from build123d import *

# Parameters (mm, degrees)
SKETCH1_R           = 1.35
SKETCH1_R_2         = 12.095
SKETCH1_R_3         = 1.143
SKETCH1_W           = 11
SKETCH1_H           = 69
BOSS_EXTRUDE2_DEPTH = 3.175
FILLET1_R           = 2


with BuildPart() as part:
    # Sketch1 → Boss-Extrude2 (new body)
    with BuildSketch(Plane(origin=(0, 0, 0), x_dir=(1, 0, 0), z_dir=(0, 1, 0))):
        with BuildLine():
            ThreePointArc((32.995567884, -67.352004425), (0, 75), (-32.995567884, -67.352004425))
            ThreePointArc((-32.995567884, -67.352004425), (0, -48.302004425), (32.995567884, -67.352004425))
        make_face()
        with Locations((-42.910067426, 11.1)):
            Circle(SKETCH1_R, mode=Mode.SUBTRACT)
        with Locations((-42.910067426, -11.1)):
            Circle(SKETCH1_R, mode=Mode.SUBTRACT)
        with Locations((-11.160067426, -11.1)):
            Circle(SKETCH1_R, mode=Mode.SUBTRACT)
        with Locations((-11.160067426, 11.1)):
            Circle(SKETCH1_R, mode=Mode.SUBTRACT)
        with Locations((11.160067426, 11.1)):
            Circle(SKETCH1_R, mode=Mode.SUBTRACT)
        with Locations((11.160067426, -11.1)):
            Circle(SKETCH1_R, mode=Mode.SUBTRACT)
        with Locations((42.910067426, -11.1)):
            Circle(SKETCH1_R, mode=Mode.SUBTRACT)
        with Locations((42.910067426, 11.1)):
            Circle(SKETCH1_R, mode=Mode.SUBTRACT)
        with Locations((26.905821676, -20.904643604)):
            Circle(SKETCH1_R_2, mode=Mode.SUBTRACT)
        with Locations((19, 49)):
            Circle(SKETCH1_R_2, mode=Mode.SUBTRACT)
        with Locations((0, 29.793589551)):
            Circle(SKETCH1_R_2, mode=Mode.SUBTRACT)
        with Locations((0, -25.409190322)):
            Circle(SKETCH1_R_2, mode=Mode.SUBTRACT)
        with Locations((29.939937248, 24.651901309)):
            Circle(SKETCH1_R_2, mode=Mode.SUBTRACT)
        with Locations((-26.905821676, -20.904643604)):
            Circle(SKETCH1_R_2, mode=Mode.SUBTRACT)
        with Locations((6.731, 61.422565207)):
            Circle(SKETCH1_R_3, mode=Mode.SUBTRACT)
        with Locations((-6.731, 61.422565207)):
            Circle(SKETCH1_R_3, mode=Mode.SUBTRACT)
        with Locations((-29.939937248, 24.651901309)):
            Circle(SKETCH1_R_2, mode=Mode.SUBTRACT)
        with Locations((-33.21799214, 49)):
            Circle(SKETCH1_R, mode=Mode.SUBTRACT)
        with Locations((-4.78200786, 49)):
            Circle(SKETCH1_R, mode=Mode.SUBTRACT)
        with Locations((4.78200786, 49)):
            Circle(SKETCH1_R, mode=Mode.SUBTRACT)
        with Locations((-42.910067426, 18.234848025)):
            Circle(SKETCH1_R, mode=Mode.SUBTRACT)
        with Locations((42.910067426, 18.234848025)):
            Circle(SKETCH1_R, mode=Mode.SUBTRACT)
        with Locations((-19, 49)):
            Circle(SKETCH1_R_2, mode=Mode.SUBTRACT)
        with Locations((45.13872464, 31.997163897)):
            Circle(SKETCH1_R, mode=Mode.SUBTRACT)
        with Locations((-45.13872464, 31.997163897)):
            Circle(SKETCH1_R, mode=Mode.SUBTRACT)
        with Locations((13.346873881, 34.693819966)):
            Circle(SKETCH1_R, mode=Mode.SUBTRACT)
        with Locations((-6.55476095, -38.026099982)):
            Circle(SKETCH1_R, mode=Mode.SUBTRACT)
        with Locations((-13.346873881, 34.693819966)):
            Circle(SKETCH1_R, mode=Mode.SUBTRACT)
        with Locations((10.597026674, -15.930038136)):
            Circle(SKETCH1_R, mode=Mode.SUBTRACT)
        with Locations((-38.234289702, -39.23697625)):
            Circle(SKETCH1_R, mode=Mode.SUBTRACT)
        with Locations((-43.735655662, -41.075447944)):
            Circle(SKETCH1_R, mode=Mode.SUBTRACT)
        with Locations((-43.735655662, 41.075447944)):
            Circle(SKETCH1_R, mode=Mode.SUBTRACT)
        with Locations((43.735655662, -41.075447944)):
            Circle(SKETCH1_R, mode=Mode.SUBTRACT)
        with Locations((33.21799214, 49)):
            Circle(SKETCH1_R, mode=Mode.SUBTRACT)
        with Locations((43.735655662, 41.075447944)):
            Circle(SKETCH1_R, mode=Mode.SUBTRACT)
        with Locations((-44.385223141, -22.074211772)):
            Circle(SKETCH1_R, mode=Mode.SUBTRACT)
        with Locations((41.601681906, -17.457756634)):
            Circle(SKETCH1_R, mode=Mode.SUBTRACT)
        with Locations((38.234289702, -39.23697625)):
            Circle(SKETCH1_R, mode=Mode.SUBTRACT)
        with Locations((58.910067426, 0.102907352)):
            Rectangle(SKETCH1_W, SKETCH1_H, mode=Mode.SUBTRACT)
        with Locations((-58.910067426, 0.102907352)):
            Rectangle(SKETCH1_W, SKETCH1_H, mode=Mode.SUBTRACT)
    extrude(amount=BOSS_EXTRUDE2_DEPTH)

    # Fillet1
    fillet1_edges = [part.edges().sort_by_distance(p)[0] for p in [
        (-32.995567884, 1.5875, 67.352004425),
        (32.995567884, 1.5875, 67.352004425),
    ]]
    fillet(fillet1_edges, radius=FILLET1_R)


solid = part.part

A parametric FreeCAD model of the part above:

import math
import FreeCAD as App
import Part
import Sketcher

V = App.Vector
Q = App.Units.Quantity


def edges_at(feature, points):
    """Names of the edges that pass closest to the given points."""
    edges = feature.Shape.Edges
    near = lambda p: min(range(len(edges)), key=lambda i: edges[i].distToShape(Part.Vertex(*p))[0])
    return sorted({f"Edge{near(p) + 1}" for p in points})

doc = App.newDocument("Part")
body = doc.addObject("PartDesign::Body", "Body")

# Sketch on XZ plane
sketch1 = body.newObject("Sketcher::SketchObject", "Sketch")
sketch1.AttachmentSupport = (doc.getObject("XZ_Plane"), [""])
sketch1.MapMode = "FlatFace"
sketch1.addGeometry(Part.ArcOfCircle(Part.Circle(V(0, 0, 0), V(0, 0, 1), 75), math.radians(116.100111), math.radians(423.899889)), False)
sketch1.addGeometry(Part.ArcOfCircle(Part.Circle(V(0, 86.402004, 0), V(0, 0, 1), 38.1), math.radians(-150), math.radians(-30)), False)
sketch1.addGeometry(Part.Circle(V(-43.735656, 41.075448, 0), V(0, 0, 1), 1.35), False)
sketch1.addGeometry(Part.Circle(V(-38.23429, 39.236976, 0), V(0, 0, 1), 1.35), False)
sketch1.addGeometry(Part.Circle(V(-44.385223, 22.074212, 0), V(0, 0, 1), 1.35), False)
sketch1.addGeometry(Part.Circle(V(-6.554761, 38.0261, 0), V(0, 0, 1), 1.35), False)
sketch1.addGeometry(Part.Circle(V(-26.905822, 20.904644, 0), V(0, 0, 1), 12.095), False)
sketch1.addGeometry(Part.Circle(V(-42.910067, 11.1, 0), V(0, 0, 1), 1.35), False)
sketch1.addGeometry(Part.LineSegment(V(-53.410067, 34.397093, 0), V(-64.410067, 34.397093, 0)), False)
sketch1.addGeometry(Part.LineSegment(V(-64.410067, 34.397093, 0), V(-64.410067, -34.602907, 0)), False)
sketch1.addGeometry(Part.LineSegment(V(-64.410067, -34.602907, 0), V(-53.410067, -34.602907, 0)), False)
sketch1.addGeometry(Part.LineSegment(V(-53.410067, -34.602907, 0), V(-53.410067, 34.397093, 0)), False)
sketch1.addGeometry(Part.Circle(V(-11.160067, 11.1, 0), V(0, 0, 1), 1.35), False)
sketch1.addGeometry(Part.Circle(V(0, 25.40919, 0), V(0, 0, 1), 12.095), False)
sketch1.addGeometry(Part.Circle(V(26.905822, 20.904644, 0), V(0, 0, 1), 12.095), False)
sketch1.addGeometry(Part.Circle(V(38.23429, 39.236976, 0), V(0, 0, 1), 1.35), False)
sketch1.addGeometry(Part.Circle(V(43.735656, 41.075448, 0), V(0, 0, 1), 1.35), False)
sketch1.addGeometry(Part.Circle(V(41.601682, 17.457757, 0), V(0, 0, 1), 1.35), False)
sketch1.addGeometry(Part.Circle(V(10.597027, 15.930038, 0), V(0, 0, 1), 1.35), False)
sketch1.addGeometry(Part.Circle(V(11.160067, 11.1, 0), V(0, 0, 1), 1.35), False)
sketch1.addGeometry(Part.Circle(V(42.910067, 11.1, 0), V(0, 0, 1), 1.35), False)
sketch1.addGeometry(Part.LineSegment(V(64.410067, 34.397093, 0), V(53.410067, 34.397093, 0)), False)
sketch1.addGeometry(Part.LineSegment(V(53.410067, 34.397093, 0), V(53.410067, -34.602907, 0)), False)
sketch1.addGeometry(Part.LineSegment(V(53.410067, -34.602907, 0), V(64.410067, -34.602907, 0)), False)
sketch1.addGeometry(Part.LineSegment(V(64.410067, -34.602907, 0), V(64.410067, 34.397093, 0)), False)
sketch1.addGeometry(Part.Circle(V(-42.910067, -11.1, 0), V(0, 0, 1), 1.35), False)
sketch1.addGeometry(Part.Circle(V(-42.910067, -18.234848, 0), V(0, 0, 1), 1.35), False)
sketch1.addGeometry(Part.Circle(V(-45.138725, -31.997164, 0), V(0, 0, 1), 1.35), False)
sketch1.addGeometry(Part.Circle(V(-11.160067, -11.1, 0), V(0, 0, 1), 1.35), False)
sketch1.addGeometry(Part.Circle(V(-29.939937, -24.651901, 0), V(0, 0, 1), 12.095), False)
sketch1.addGeometry(Part.Circle(V(-13.346874, -34.69382, 0), V(0, 0, 1), 1.35), False)
sketch1.addGeometry(Part.Circle(V(-43.735656, -41.075448, 0), V(0, 0, 1), 1.35), False)
sketch1.addGeometry(Part.Circle(V(-33.217992, -49, 0), V(0, 0, 1), 1.35), False)
sketch1.addGeometry(Part.Circle(V(-19, -49, 0), V(0, 0, 1), 12.095), False)
sketch1.addGeometry(Part.Circle(V(-4.782008, -49, 0), V(0, 0, 1), 1.35), False)
sketch1.addGeometry(Part.Circle(V(-6.731, -61.422565, 0), V(0, 0, 1), 1.143), False)
sketch1.addGeometry(Part.Circle(V(11.160067, -11.1, 0), V(0, 0, 1), 1.35), False)
sketch1.addGeometry(Part.Circle(V(0, -29.79359, 0), V(0, 0, 1), 12.095), False)
sketch1.addGeometry(Part.Circle(V(13.346874, -34.69382, 0), V(0, 0, 1), 1.35), False)
sketch1.addGeometry(Part.Circle(V(29.939937, -24.651901, 0), V(0, 0, 1), 12.095), False)
sketch1.addGeometry(Part.Circle(V(42.910067, -11.1, 0), V(0, 0, 1), 1.35), False)
sketch1.addGeometry(Part.Circle(V(42.910067, -18.234848, 0), V(0, 0, 1), 1.35), False)
sketch1.addGeometry(Part.Circle(V(45.138725, -31.997164, 0), V(0, 0, 1), 1.35), False)
sketch1.addGeometry(Part.Circle(V(4.782008, -49, 0), V(0, 0, 1), 1.35), False)
sketch1.addGeometry(Part.Circle(V(19, -49, 0), V(0, 0, 1), 12.095), False)
sketch1.addGeometry(Part.Circle(V(6.731, -61.422565, 0), V(0, 0, 1), 1.143), False)
sketch1.addGeometry(Part.Circle(V(43.735656, -41.075448, 0), V(0, 0, 1), 1.35), False)
sketch1.addGeometry(Part.Circle(V(33.217992, -49, 0), V(0, 0, 1), 1.35), False)
sketch1.addConstraint(Sketcher.Constraint("Coincident", 0, 1, 1, 1))
sketch1.addConstraint(Sketcher.Constraint("Coincident", 1, 2, 0, 2))
sketch1.addConstraint(Sketcher.Constraint("Coincident", 8, 2, 9, 1))
sketch1.addConstraint(Sketcher.Constraint("Coincident", 9, 2, 10, 1))
sketch1.addConstraint(Sketcher.Constraint("Coincident", 10, 2, 11, 1))
sketch1.addConstraint(Sketcher.Constraint("Coincident", 11, 2, 8, 1))
sketch1.addConstraint(Sketcher.Constraint("Coincident", 21, 2, 22, 1))
sketch1.addConstraint(Sketcher.Constraint("Coincident", 22, 2, 23, 1))
sketch1.addConstraint(Sketcher.Constraint("Coincident", 23, 2, 24, 1))
sketch1.addConstraint(Sketcher.Constraint("Coincident", 24, 2, 21, 1))
sketch1.addConstraint(Sketcher.Constraint("Horizontal", 8))
sketch1.addConstraint(Sketcher.Constraint("Vertical", 9))
sketch1.addConstraint(Sketcher.Constraint("Horizontal", 10))
sketch1.addConstraint(Sketcher.Constraint("Vertical", 11))
sketch1.addConstraint(Sketcher.Constraint("Horizontal", 21))
sketch1.addConstraint(Sketcher.Constraint("Vertical", 22))
sketch1.addConstraint(Sketcher.Constraint("Horizontal", 23))
sketch1.addConstraint(Sketcher.Constraint("Vertical", 24))
sketch1.addConstraint(Sketcher.Constraint("Coincident", 0, 3, -1, 1))
sketch1.addConstraint(Sketcher.Constraint("Equal", 2, 3))
sketch1.addConstraint(Sketcher.Constraint("Equal", 3, 4))
sketch1.addConstraint(Sketcher.Constraint("Equal", 4, 5))
sketch1.addConstraint(Sketcher.Constraint("Equal", 5, 7))
sketch1.addConstraint(Sketcher.Constraint("Equal", 7, 12))
sketch1.addConstraint(Sketcher.Constraint("Equal", 6, 13))
sketch1.addConstraint(Sketcher.Constraint("Equal", 13, 14))
sketch1.addConstraint(Sketcher.Constraint("Equal", 12, 15))
sketch1.addConstraint(Sketcher.Constraint("Equal", 15, 16))
sketch1.addConstraint(Sketcher.Constraint("Equal", 16, 17))
sketch1.addConstraint(Sketcher.Constraint("Equal", 17, 18))
sketch1.addConstraint(Sketcher.Constraint("Equal", 18, 19))
sketch1.addConstraint(Sketcher.Constraint("Equal", 19, 20))
sketch1.addConstraint(Sketcher.Constraint("Equal", 20, 25))
sketch1.addConstraint(Sketcher.Constraint("Equal", 25, 26))
sketch1.addConstraint(Sketcher.Constraint("Equal", 26, 27))
sketch1.addConstraint(Sketcher.Constraint("Equal", 27, 28))
sketch1.addConstraint(Sketcher.Constraint("Equal", 14, 29))
sketch1.addConstraint(Sketcher.Constraint("Equal", 28, 30))
sketch1.addConstraint(Sketcher.Constraint("Equal", 30, 31))
sketch1.addConstraint(Sketcher.Constraint("Equal", 31, 32))
sketch1.addConstraint(Sketcher.Constraint("Equal", 29, 33))
sketch1.addConstraint(Sketcher.Constraint("Equal", 32, 34))
sketch1.addConstraint(Sketcher.Constraint("Equal", 34, 36))
sketch1.addConstraint(Sketcher.Constraint("Equal", 33, 37))
sketch1.addConstraint(Sketcher.Constraint("Equal", 36, 38))
sketch1.addConstraint(Sketcher.Constraint("Equal", 37, 39))
sketch1.addConstraint(Sketcher.Constraint("Equal", 38, 40))
sketch1.addConstraint(Sketcher.Constraint("Equal", 40, 41))
sketch1.addConstraint(Sketcher.Constraint("Equal", 41, 42))
sketch1.addConstraint(Sketcher.Constraint("Equal", 42, 43))
sketch1.addConstraint(Sketcher.Constraint("Equal", 39, 44))
sketch1.addConstraint(Sketcher.Constraint("Equal", 35, 45))
sketch1.addConstraint(Sketcher.Constraint("Equal", 43, 46))
sketch1.addConstraint(Sketcher.Constraint("Equal", 46, 47))
sketch1.addConstraint(Sketcher.Constraint("Symmetric", 20, 3, 25, 3, -1, 1))
sketch1.addConstraint(Sketcher.Constraint("Symmetric", 19, 3, 28, 3, -1, 1))
sketch1.addConstraint(Sketcher.Constraint("Symmetric", 16, 3, 31, 3, -1, 1))
sketch1.addConstraint(Sketcher.Constraint("Symmetric", 12, 3, 36, 3, -1, 1))
sketch1.addConstraint(Sketcher.Constraint("Symmetric", 7, 3, 40, 3, -1, 1))
sketch1.addConstraint(Sketcher.Constraint("Symmetric", 2, 3, 46, 3, -1, 1))
sketch1.addConstraint(Sketcher.Constraint("Symmetric", 6, 3, 14, 3, -2))
sketch1.addConstraint(Sketcher.Constraint("Symmetric", 3, 3, 15, 3, -2))
sketch1.addConstraint(Sketcher.Constraint("Symmetric", 2, 3, 16, 3, -2))
sketch1.addConstraint(Sketcher.Constraint("Symmetric", 12, 3, 19, 3, -2))
sketch1.addConstraint(Sketcher.Constraint("Symmetric", 7, 3, 20, 3, -2))
sketch1.addConstraint(Sketcher.Constraint("Symmetric", 30, 3, 38, 3, -2))
sketch1.addConstraint(Sketcher.Constraint("Symmetric", 29, 3, 39, 3, -2))
sketch1.addConstraint(Sketcher.Constraint("Symmetric", 26, 3, 41, 3, -2))
sketch1.addConstraint(Sketcher.Constraint("Symmetric", 27, 3, 42, 3, -2))
sketch1.addConstraint(Sketcher.Constraint("Symmetric", 34, 3, 43, 3, -2))
sketch1.addConstraint(Sketcher.Constraint("Symmetric", 33, 3, 44, 3, -2))
sketch1.addConstraint(Sketcher.Constraint("Symmetric", 35, 3, 45, 3, -2))
sketch1.addConstraint(Sketcher.Constraint("Symmetric", 32, 3, 47, 3, -2))
sketch1.addConstraint(Sketcher.Constraint("Symmetric", 11, 2, 21, 2, -2))
sketch1.addConstraint(Sketcher.Constraint("Symmetric", 9, 2, 23, 2, -2))
sketch1.addConstraint(Sketcher.Constraint("PointOnObject", 1, 3, -2))
sketch1.addConstraint(Sketcher.Constraint("PointOnObject", 13, 3, -2))
sketch1.addConstraint(Sketcher.Constraint("PointOnObject", 37, 3, -2))
sketch1.addConstraint(Sketcher.Constraint("Horizontal", 7, 3, 12, 3))
sketch1.addConstraint(Sketcher.Constraint("Horizontal", 32, 3, 33, 3))
sketch1.addConstraint(Sketcher.Constraint("Horizontal", 33, 3, 34, 3))
sketch1.addConstraint(Sketcher.Constraint("Vertical", 25, 3, 26, 3))
sketch1.addConstraint(Sketcher.Constraint("Radius", 0, Q("75 mm")))
sketch1.addConstraint(Sketcher.Constraint("Diameter", 2, Q("2.7 mm")))
sketch1.addConstraint(Sketcher.Constraint("Radius", 1, Q("38.1 mm")))
sketch1.addConstraint(Sketcher.Constraint("Diameter", 6, Q("24.19 mm")))
sketch1.addConstraint(Sketcher.Constraint("DistanceX", 8, 2, 8, 1, Q("11 mm")))
sketch1.addConstraint(Sketcher.Constraint("DistanceY", 9, 2, 9, 1, Q("69 mm")))
sketch1.addConstraint(Sketcher.Constraint("Diameter", 35, Q("2.286 mm")))
sketch1.addConstraint(Sketcher.Constraint("DistanceY", 32, 3, -1, 1, Q("49 mm")))
sketch1.addConstraint(Sketcher.Constraint("DistanceX", 33, 3, -1, 1, Q("19 mm")))
sketch1.addConstraint(Sketcher.Constraint("DistanceY", -1, 1, 7, 3, Q("11.1 mm")))
sketch1.addConstraint(Sketcher.Constraint("DistanceX", 8, 2, 7, 3, Q("21.5 mm")))
sketch1.addConstraint(Sketcher.Constraint("DistanceX", 7, 3, 12, 3, Q("31.75 mm")))
sketch1.addConstraint(Sketcher.Constraint("DistanceY", 0, 1, 1, 3, Q("19.05 mm")))
sketch1.addConstraint(Sketcher.Constraint("DistanceX", 35, 3, -1, 1, Q("6.731 mm")))
sketch1.addConstraint(Sketcher.Constraint("DistanceY", -1, 1, 5, 3, Q("38.0261 mm")))
sketch1.addConstraint(Sketcher.Constraint("DistanceY", 29, 3, -1, 1, Q("24.651901 mm")))
sketch1.addConstraint(Sketcher.Constraint("DistanceX", 4, 3, 6, 3, Q("17.479401 mm")))
sketch1.addConstraint(Sketcher.Constraint("DistanceX", 27, 3, 4, 3, Q("0.753501 mm")))
sketch1.addConstraint(Sketcher.Constraint("DistanceY", 31, 3, 26, 3, Q("22.8406 mm")))
sketch1.addConstraint(Sketcher.Constraint("DistanceX", 3, 3, -1, 1, Q("38.23429 mm")))
sketch1.addConstraint(Sketcher.Constraint("DistanceY", -1, 1, 4, 3, Q("22.074212 mm")))
sketch1.addConstraint(Sketcher.Constraint("DistanceX", 5, 3, -1, 1, Q("6.554761 mm")))
sketch1.addConstraint(Sketcher.Constraint("DistanceX", 6, 3, -1, 1, Q("26.905822 mm")))
sketch1.addConstraint(Sketcher.Constraint("DistanceY", -1, 1, 13, 3, Q("25.40919 mm")))
sketch1.addConstraint(Sketcher.Constraint("DistanceX", -1, 1, 17, 3, Q("41.601682 mm")))
sketch1.addConstraint(Sketcher.Constraint("DistanceY", -1, 1, 18, 3, Q("15.930038 mm")))
sketch1.addConstraint(Sketcher.Constraint("DistanceY", 26, 3, -1, 1, Q("18.234848 mm")))
sketch1.addConstraint(Sketcher.Constraint("DistanceY", 30, 3, -1, 1, Q("34.69382 mm")))
sketch1.addConstraint(Sketcher.Constraint("DistanceY", 37, 3, -1, 1, Q("29.79359 mm")))
sketch1.addConstraint(Sketcher.Constraint("DistanceY", 3, 3, 2, 3, Q("1.838472 mm")))
sketch1.addConstraint(Sketcher.Constraint("DistanceY", 6, 3, 4, 3, Q("1.169568 mm")))
sketch1.addConstraint(Sketcher.Constraint("DistanceX", 2, 3, 7, 3, Q("0.825588 mm")))
sketch1.addConstraint(Sketcher.Constraint("DistanceX", 12, 3, 14, 3, Q("38.065889 mm")))
sketch1.addConstraint(Sketcher.Constraint("DistanceY", 17, 3, 15, 3, Q("21.77922 mm")))
sketch1.addConstraint(Sketcher.Constraint("DistanceX", 18, 3, 19, 3, Q("0.563041 mm")))
sketch1.addConstraint(Sketcher.Constraint("DistanceX", 26, 3, 29, 3, Q("12.97013 mm")))
sketch1.addConstraint(Sketcher.Constraint("DistanceX", 27, 3, 30, 3, Q("31.791851 mm")))
sketch1.addConstraint(Sketcher.Constraint("DistanceX", 32, 3, 30, 3, Q("19.871118 mm")))
sketch1.addConstraint(Sketcher.Constraint("DistanceX", 29, 3, 34, 3, Q("25.157929 mm")))
sketch1.addConstraint(Sketcher.Constraint("DistanceY", 4, 3, 8, 2, Q("12.322881 mm")))
sketch1.addConstraint(Sketcher.Constraint("DistanceY", 27, 3, -1, 1, Q("31.997164 mm")))
sketch1.addConstraint(Sketcher.Constraint("DistanceY", 35, 3, -1, 1, Q("61.422565 mm")))
pad1 = body.newObject("PartDesign::Pad", "Pad")
pad1.Profile = sketch1
pad1.Length = 3.175
pad1.Reversed = True
doc.recompute()

fillet = body.newObject("PartDesign::Fillet", "Fillet")
fillet.Base = (pad1, edges_at(pad1, [(-32.996, 1.587, 67.352), (32.996, 1.587, 67.352)]))
fillet.Radius = 2

doc.recompute()
